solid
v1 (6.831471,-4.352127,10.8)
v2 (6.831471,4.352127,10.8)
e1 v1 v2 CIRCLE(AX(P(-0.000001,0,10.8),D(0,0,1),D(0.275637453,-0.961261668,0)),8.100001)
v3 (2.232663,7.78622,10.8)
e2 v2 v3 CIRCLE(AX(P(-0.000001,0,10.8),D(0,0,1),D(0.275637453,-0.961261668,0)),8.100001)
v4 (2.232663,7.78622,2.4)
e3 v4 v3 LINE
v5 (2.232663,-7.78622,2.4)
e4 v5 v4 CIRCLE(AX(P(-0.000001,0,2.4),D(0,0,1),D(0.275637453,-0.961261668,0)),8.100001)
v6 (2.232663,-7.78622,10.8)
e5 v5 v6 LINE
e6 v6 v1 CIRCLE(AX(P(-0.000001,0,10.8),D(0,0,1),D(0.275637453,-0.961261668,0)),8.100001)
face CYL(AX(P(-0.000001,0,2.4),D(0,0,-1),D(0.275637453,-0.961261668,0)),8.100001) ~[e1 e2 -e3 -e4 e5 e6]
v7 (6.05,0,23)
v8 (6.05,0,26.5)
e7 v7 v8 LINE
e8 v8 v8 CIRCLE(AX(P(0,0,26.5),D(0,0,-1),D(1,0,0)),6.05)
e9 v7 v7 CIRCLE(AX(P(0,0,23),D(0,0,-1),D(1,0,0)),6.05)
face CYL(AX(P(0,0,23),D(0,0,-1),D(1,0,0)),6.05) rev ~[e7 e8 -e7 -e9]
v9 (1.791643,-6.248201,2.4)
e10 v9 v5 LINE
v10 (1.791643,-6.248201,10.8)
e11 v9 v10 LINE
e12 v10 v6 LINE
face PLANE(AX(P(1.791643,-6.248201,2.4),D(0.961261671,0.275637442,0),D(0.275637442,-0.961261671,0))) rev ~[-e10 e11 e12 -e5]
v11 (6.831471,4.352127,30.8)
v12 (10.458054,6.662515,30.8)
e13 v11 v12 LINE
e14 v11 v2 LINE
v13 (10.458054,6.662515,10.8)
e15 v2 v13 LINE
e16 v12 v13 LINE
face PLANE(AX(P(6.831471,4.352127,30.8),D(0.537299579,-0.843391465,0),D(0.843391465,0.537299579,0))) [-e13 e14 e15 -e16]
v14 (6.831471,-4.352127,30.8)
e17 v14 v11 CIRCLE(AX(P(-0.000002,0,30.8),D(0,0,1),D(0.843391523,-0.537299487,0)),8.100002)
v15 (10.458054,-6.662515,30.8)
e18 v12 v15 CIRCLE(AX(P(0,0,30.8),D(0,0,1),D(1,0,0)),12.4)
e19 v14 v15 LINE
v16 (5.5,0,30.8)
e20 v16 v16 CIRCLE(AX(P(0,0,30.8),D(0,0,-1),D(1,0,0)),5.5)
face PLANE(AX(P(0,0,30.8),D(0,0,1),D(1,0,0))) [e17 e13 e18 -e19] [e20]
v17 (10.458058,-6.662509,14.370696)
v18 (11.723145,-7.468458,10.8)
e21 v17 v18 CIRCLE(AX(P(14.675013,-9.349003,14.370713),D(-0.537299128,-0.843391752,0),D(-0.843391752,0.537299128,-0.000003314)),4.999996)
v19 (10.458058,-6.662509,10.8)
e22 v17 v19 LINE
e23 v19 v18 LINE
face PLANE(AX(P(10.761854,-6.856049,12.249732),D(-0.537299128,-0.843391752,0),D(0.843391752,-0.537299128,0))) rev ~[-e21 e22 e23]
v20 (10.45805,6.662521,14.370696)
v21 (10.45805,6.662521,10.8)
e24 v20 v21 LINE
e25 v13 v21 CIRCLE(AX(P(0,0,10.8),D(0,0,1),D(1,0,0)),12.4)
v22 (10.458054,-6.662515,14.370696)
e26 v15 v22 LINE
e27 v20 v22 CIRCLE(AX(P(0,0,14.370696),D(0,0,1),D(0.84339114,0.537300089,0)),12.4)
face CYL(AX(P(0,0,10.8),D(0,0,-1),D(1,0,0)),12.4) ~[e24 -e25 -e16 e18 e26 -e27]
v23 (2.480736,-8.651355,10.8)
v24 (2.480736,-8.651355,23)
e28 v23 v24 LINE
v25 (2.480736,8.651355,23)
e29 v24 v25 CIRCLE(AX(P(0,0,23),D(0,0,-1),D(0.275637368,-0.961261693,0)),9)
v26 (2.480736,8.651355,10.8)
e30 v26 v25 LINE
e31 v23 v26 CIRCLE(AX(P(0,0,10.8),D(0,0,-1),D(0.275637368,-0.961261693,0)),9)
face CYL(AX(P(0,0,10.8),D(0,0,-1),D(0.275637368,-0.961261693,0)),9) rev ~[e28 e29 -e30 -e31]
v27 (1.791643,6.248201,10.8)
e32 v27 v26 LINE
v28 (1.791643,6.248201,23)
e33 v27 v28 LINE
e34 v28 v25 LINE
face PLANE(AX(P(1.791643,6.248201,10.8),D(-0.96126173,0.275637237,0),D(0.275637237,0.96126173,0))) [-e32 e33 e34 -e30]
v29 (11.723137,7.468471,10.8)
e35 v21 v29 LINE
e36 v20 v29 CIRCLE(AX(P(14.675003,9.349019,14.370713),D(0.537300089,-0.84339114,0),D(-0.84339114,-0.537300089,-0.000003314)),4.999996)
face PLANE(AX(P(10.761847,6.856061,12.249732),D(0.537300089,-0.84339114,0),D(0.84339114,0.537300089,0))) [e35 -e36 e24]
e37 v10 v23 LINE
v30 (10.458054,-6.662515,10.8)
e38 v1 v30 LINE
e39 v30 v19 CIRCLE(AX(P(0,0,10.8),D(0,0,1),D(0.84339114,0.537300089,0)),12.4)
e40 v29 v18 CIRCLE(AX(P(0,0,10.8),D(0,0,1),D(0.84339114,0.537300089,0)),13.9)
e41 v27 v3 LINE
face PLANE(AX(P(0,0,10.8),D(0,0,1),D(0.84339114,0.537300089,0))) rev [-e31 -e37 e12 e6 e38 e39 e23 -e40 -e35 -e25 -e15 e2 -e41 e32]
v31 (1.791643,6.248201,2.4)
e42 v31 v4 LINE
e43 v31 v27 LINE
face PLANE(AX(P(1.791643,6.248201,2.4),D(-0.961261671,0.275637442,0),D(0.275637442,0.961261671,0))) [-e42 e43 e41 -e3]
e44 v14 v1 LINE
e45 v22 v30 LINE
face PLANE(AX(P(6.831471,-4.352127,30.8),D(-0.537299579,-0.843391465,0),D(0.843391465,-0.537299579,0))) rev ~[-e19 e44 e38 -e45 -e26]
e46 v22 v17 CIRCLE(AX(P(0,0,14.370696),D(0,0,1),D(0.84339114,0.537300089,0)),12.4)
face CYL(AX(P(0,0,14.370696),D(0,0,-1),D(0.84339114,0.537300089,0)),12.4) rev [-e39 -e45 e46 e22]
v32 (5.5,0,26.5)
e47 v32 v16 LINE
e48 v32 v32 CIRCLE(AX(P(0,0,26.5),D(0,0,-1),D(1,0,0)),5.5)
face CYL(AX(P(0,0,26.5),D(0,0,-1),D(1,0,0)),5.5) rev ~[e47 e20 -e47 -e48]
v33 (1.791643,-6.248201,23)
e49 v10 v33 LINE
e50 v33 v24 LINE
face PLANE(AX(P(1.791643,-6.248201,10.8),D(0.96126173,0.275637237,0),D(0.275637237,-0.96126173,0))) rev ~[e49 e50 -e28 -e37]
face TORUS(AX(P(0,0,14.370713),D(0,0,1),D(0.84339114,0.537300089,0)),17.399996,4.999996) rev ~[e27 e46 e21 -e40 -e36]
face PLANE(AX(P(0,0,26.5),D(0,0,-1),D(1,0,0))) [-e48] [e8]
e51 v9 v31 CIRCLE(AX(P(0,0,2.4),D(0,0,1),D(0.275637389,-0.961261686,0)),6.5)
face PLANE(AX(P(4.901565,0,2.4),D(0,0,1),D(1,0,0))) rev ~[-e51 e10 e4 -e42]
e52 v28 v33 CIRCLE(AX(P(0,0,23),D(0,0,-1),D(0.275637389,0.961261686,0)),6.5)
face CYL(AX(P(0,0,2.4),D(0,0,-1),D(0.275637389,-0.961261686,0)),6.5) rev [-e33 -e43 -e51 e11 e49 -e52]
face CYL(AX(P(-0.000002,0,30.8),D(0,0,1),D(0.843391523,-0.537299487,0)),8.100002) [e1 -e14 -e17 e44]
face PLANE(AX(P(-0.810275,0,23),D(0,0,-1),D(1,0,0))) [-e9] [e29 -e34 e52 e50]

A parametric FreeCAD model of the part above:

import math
import FreeCAD as App
import Part
import Sketcher
Q = App.Units.Quantity

doc = App.newDocument("Part")
body = doc.addObject("PartDesign::Body", "Body")

# Sketch on XY plane
sketch1 = body.newObject("Sketcher::SketchObject", "Sketch")
sketch1.AttachmentSupport = (doc.getObject("XY_Plane"), [""])
sketch1.MapMode = "FlatFace"
sketch1.AttachmentOffset = App.Placement(App.Vector(0, 0, 8.4), App.Rotation())
sketch1.addGeometry(Part.Circle(App.Vector(0, 0, 0), App.Vector(0, 0, 1), 12.4), False)
sketch1.addConstraint([
    Sketcher.Constraint("Coincident", 0, 3, -1, 1),
    Sketcher.Constraint("Diameter", 0, Q("24.8 mm")),
])
pad1 = body.newObject("PartDesign::Pad", "Pad")
pad1.Profile = sketch1
pad1.Length = 20

# Sketch on XY plane
sketch2 = body.newObject("Sketcher::SketchObject", "Sketch001")
sketch2.AttachmentSupport = (doc.getObject("XY_Plane"), [""])
sketch2.MapMode = "FlatFace"
sketch2.addGeometry([
    Part.ArcOfCircle(Part.Circle(App.Vector(-0.000001, 0, 0), App.Vector(0, 0, 1), 8.100001), math.radians(-73.999994), math.radians(73.999994)),
    Part.LineSegment(App.Vector(2.232663, 7.78622, 0), App.Vector(1.791643, 6.248201, 0)),
    Part.ArcOfCircle(Part.Circle(App.Vector(0, 0, 0), App.Vector(0, 0, 1), 6.5), math.radians(-73.999998), math.radians(73.999998)),
    Part.LineSegment(App.Vector(1.791643, -6.248201, 0), App.Vector(2.232663, -7.78622, 0)),
], False)
sketch2.addConstraint([
    Sketcher.Constraint("Coincident", 0, 2, 1, 1),
    Sketcher.Constraint("Coincident", 1, 2, 2, 2),
    Sketcher.Constraint("Coincident", 2, 1, 3, 1),
    Sketcher.Constraint("Coincident", 3, 2, 0, 1),
    Sketcher.Constraint("Coincident", 0, 3, -1, 1),
    Sketcher.Constraint("Coincident", 2, 3, -1, 1),
    Sketcher.Constraint("Vertical", 1, 2, 2, 1),
    Sketcher.Constraint("Vertical", 0, 2, 3, 2),
    Sketcher.Constraint("Radius", 0, Q("8.100001 mm")),
    Sketcher.Constraint("Radius", 2, Q("6.5 mm")),
    Sketcher.Constraint("Angle", 1, Q("-106.000005 deg")),
    Sketcher.Constraint("DistanceY", -1, 1, 1, 2, Q("6.248201 mm")),
])
pad2 = body.newObject("PartDesign::Pad", "Pad001")
pad2.Profile = sketch2
pad2.Length = 8.4

# Sketch on XY plane
sketch3 = body.newObject("Sketcher::SketchObject", "Sketch002")
sketch3.AttachmentSupport = (doc.getObject("XY_Plane"), [""])
sketch3.MapMode = "FlatFace"
sketch3.AttachmentOffset = App.Placement(App.Vector(0, 0, 8.4), App.Rotation())
sketch3.addGeometry([
    Part.ArcOfCircle(Part.Circle(App.Vector(0, 0, 0), App.Vector(0, 0, 1), 9), math.radians(73.999999), math.radians(286.000001)),
    Part.LineSegment(App.Vector(2.480736, 8.651355, 0), App.Vector(1.791643, 6.248201, 0)),
    Part.ArcOfCircle(Part.Circle(App.Vector(0, 0, 0), App.Vector(0, 0, 1), 6.5), math.radians(-73.999998), math.radians(73.999998)),
    Part.LineSegment(App.Vector(1.791643, -6.248201, 0), App.Vector(2.480736, -8.651355, 0)),
], False)
sketch3.addConstraint([
    Sketcher.Constraint("Coincident", 0, 1, 1, 1),
    Sketcher.Constraint("Coincident", 1, 2, 2, 2),
    Sketcher.Constraint("Coincident", 2, 1, 3, 1),
    Sketcher.Constraint("Coincident", 3, 2, 0, 2),
    Sketcher.Constraint("Coincident", 0, 3, -1, 1),
    Sketcher.Constraint("Coincident", 2, 3, -1, 1),
    Sketcher.Constraint("Vertical", 1, 2, 2, 1),
    Sketcher.Constraint("Vertical", 0, 1, 3, 2),
    Sketcher.Constraint("Radius", 0, Q("9 mm")),
    Sketcher.Constraint("Radius", 2, Q("6.5 mm")),
    Sketcher.Constraint("Angle", 1, Q("-105.999993 deg")),
    Sketcher.Constraint("DistanceY", -1, 1, 1, 2, Q("6.248201 mm")),
])
pocket1 = body.newObject("PartDesign::Pocket", "Pocket")
pocket1.Profile = sketch3
pocket1.Length = 12.2
pocket1.Reversed = True

# Sketch on XY plane
sketch4 = body.newObject("Sketcher::SketchObject", "Sketch003")
sketch4.AttachmentSupport = (doc.getObject("XY_Plane"), [""])
sketch4.MapMode = "FlatFace"
sketch4.AttachmentOffset = App.Placement(App.Vector(0, 0, 20.6), App.Rotation())
sketch4.addGeometry(Part.Circle(App.Vector(0, 0, 0), App.Vector(0, 0, 1), 6.05), False)
sketch4.addConstraint([
    Sketcher.Constraint("Coincident", 0, 3, -1, 1),
    Sketcher.Constraint("Diameter", 0, Q("12.1 mm")),
])
pocket2 = body.newObject("PartDesign::Pocket", "Pocket001")
pocket2.Profile = sketch4
pocket2.Length = 3.5
pocket2.Reversed = True

# Sketch on XY plane
sketch5 = body.newObject("Sketcher::SketchObject", "Sketch004")
sketch5.AttachmentSupport = (doc.getObject("XY_Plane"), [""])
sketch5.MapMode = "FlatFace"
sketch5.AttachmentOffset = App.Placement(App.Vector(0, 0, 24.1), App.Rotation())
sketch5.addGeometry(Part.Circle(App.Vector(0, 0, 0), App.Vector(0, 0, 1), 5.5), False)
sketch5.addConstraint([
    Sketcher.Constraint("Coincident", 0, 3, -1, 1),
    Sketcher.Constraint("Diameter", 0, Q("11 mm")),
])
pocket3 = body.newObject("PartDesign::Pocket", "Pocket002")
pocket3.Profile = sketch5
pocket3.Type = "ThroughAll"
pocket3.Reversed = True

# Sketch on XY plane
sketch6 = body.newObject("Sketcher::SketchObject", "Sketch005")
sketch6.AttachmentSupport = (doc.getObject("XY_Plane"), [""])
sketch6.MapMode = "FlatFace"
sketch6.AttachmentOffset = App.Placement(App.Vector(0, 0, 28.4), App.Rotation())
sketch6.addGeometry([
    Part.ArcOfCircle(Part.Circle(App.Vector(0, 0, 0), App.Vector(0, 0, 1), 12.4), math.radians(-32.5), math.radians(32.5)),
    Part.LineSegment(App.Vector(10.458054, 6.662515, 0), App.Vector(6.831471, 4.352127, 0)),
    Part.ArcOfCircle(Part.Circle(App.Vector(-0.000002, 0, 0), App.Vector(0, 0, 1), 8.100002), math.radians(-32.499992), math.radians(32.499992)),
    Part.LineSegment(App.Vector(6.831471, -4.352127, 0), App.Vector(10.458054, -6.662515, 0)),
], False)
sketch6.addConstraint([
    Sketcher.Constraint("Coincident", 0, 2, 1, 1),
    Sketcher.Constraint("Coincident", 1, 2, 2, 2),
    Sketcher.Constraint("Coincident", 2, 1, 3, 1),
    Sketcher.Constraint("Coincident", 3, 2, 0, 1),
    Sketcher.Constraint("Coincident", 0, 3, -1, 1),
    Sketcher.Constraint("Coincident", 2, 3, -1, 1),
    Sketcher.Constraint("Vertical", 1, 2, 2, 1),
    Sketcher.Constraint("Vertical", 0, 2, 3, 2),
    Sketcher.Constraint("Radius", 0, Q("12.4 mm")),
    Sketcher.Constraint("Angle", 1, Q("-147.500002 deg")),
    Sketcher.Constraint("Distance", 1, Q("4.3 mm")),
    Sketcher.Constraint("DistanceX", -1, 1, 1, 2, Q("6.831471 mm")),
])
pocket4 = body.newObject("PartDesign::Pocket", "Pocket003")
pocket4.Profile = sketch6
pocket4.Type = "ThroughAll"

# Sketch on an angled plane
sketch7 = body.newObject("Sketcher::SketchObject", "Sketch006")
sketch7.Placement = App.Placement(App.Vector(0, 0, 8.4), App.Rotation(App.Vector(0.84339114, 0.537300089, 0), App.Vector(0, 0, 1.000000001), App.Vector(0.537300089, -0.84339114, 0), "ZXY"))
sketch7.addGeometry([
    Part.LineSegment(App.Vector(12.4, 0, 0), App.Vector(13.9, 0, 0)),
    Part.ArcOfCircle(Part.Circle(App.Vector(17.399996, 3.570713, 0), App.Vector(0, 0, 1), 4.999996), math.radians(-179.99981), math.radians(-134.426985)),
    Part.LineSegment(App.Vector(12.4, 3.570696, 0), App.Vector(12.4, 0, 0)),
], False)
sketch7.addConstraint([
    Sketcher.Constraint("Coincident", 0, 2, 1, 2),
    Sketcher.Constraint("Coincident", 1, 1, 2, 1),
    Sketcher.Constraint("Coincident", 2, 2, 0, 1),
    Sketcher.Constraint("Horizontal", 0),
    Sketcher.Constraint("Vertical", 2),
    Sketcher.Constraint("PointOnObject", 0, 2, -1),
    Sketcher.Constraint("DistanceX", 0, 1, 0, 2, Q("1.5 mm")),
    Sketcher.Constraint("DistanceX", -1, 1, 0, 2, Q("13.9 mm")),
    Sketcher.Constraint("Radius", 1, Q("4.999996 mm")),
    Sketcher.Constraint("DistanceY", 2, 2, 2, 1, Q("3.570696 mm")),
])
revolution = body.newObject("PartDesign::Revolution", "Revolution")
revolution.Profile = sketch7
revolution.ReferenceAxis = (sketch7, ["V_Axis"])
revolution.Angle = 295
body2 = doc.addObject("PartDesign::Body", "Body001")
doc.recompute()

body.Placement = App.Placement(App.Vector(0, 0, 2.4), App.Rotation(App.Vector(0, 0, 1), 0))
boolean = body2.newObject("PartDesign::Boolean", "Boolean")
boolean.Type = "Fuse"
boolean.addObjects([body])

doc.recompute()
